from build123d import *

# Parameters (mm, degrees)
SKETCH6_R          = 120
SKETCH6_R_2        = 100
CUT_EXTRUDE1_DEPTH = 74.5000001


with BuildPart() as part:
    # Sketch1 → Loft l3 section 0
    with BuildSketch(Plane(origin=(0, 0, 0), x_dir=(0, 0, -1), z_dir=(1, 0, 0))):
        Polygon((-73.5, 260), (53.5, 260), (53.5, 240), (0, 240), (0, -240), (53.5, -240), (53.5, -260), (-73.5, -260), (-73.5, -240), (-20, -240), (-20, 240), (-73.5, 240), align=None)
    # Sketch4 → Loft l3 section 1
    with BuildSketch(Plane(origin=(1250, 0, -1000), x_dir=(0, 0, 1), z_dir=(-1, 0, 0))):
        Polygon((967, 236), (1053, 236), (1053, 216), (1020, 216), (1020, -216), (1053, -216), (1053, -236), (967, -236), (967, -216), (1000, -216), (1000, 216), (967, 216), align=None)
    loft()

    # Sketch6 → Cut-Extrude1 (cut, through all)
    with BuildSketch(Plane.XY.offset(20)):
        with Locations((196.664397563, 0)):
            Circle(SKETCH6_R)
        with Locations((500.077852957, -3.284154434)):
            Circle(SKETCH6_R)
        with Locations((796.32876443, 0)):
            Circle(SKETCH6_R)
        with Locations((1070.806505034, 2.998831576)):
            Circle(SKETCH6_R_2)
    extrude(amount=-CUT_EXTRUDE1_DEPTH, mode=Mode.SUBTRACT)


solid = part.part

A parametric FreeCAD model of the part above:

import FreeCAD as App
import Part
import Sketcher
from FreeCAD import Vector
Q = App.Units.Quantity


def add_polygon(sketch, points):
    """Adds a closed chain of lines whose ends are joined by coincident constraints."""
    first, n = sketch.GeometryCount, len(points)
    for a, b in zip(points, points[1:] + points[:1]):
        sketch.addGeometry(Part.LineSegment(App.Vector(*a, 0), App.Vector(*b, 0)), False)
    for i in range(n):
        sketch.addConstraint(Sketcher.Constraint("Coincident", first + i, 2, first + (i + 1) % n, 1))

doc = App.newDocument("Part")
params = doc.addObject("Spreadsheet::Sheet", "Params")
for row, (alias, value) in enumerate([
    ("sketch1_width", "20 mm"),
    ("sketch1_width2", "480 mm"),
    ("sketch1_height", "127 mm"),
    ("sketch1_height2", "53.5 mm"),
    ("sketch2_width", "20 mm"),
    ("sketch2_width2", "432 mm"),
    ("sketch2_height", "86 mm"),
    ("sketch2_height2", "33 mm"),
    ("sketch3_diameter", "240 mm"),
    ("sketch3_diameter2", "200 mm"),
], start=1):
    params.set(f"A{row}", alias)
    params.set(f"B{row}", "=" + value)
    params.setAlias(f"B{row}", alias)

body = doc.addObject("PartDesign::Body", "Body")

# Sketch on YZ plane
sketch1 = body.newObject("Sketcher::SketchObject", "Sketch")
sketch1.AttachmentSupport = (doc.getObject("YZ_Plane"), [""])
sketch1.MapMode = "FlatFace"
add_polygon(sketch1, [(260, -53.5), (260, 73.5), (240, 73.5), (240, 20), (-240, 20), (-240, 73.5), (-260, 73.5), (-260, -53.5), (-240, -53.5), (-240, 0), (240, 0), (240, -53.5)])  # lines 0-11
sketch1.addConstraint([
    Sketcher.Constraint("Vertical", 0),
    Sketcher.Constraint("Horizontal", 1),
    Sketcher.Constraint("Vertical", 2),
    Sketcher.Constraint("Horizontal", 3),
    Sketcher.Constraint("Vertical", 4),
    Sketcher.Constraint("Horizontal", 5),
    Sketcher.Constraint("Vertical", 6),
    Sketcher.Constraint("Horizontal", 7),
    Sketcher.Constraint("Vertical", 8),
    Sketcher.Constraint("Horizontal", 9),
    Sketcher.Constraint("Vertical", 10),
    Sketcher.Constraint("Horizontal", 11),
    Sketcher.Constraint("Symmetric", 8, 2, 9, 2, -1, 1),
    Sketcher.Constraint("Symmetric", 1, 2, 4, 2, -2),
    Sketcher.Constraint("Symmetric", 6, 2, 11, 2, -2),
    Sketcher.Constraint("Vertical", 4, 2, 7, 2),
    Sketcher.Constraint("Equal", 4, 8),
    Sketcher.Constraint("DistanceX", 1, 2, 1, 1, Q("20 mm")),
    Sketcher.Constraint("DistanceX", 3, 2, 3, 1, Q("480 mm")),
    Sketcher.Constraint("DistanceY", 0, 1, 0, 2, Q("127 mm")),
    Sketcher.Constraint("DistanceY", 2, 2, 2, 1, Q("53.5 mm")),
])
sketch1.setExpression("Constraints[29]", "Params.sketch1_width")
sketch1.setExpression("Constraints[30]", "Params.sketch1_width2")
sketch1.setExpression("Constraints[31]", "Params.sketch1_height")
sketch1.setExpression("Constraints[32]", "Params.sketch1_height2")

# Sketch on YZ plane
sketch2 = body.newObject("Sketcher::SketchObject", "Sketch001")
sketch2.AttachmentSupport = (doc.getObject("YZ_Plane"), [""])
sketch2.MapMode = "FlatFace"
sketch2.AttachmentOffset = App.Placement(Vector(0, 0, 1250), App.Rotation())
add_polygon(sketch2, [(236, 53), (236, -33), (216, -33), (216, 0), (-216, 0), (-216, -33), (-236, -33), (-236, 53), (-216, 53), (-216, 20), (216, 20), (216, 53)])  # lines 0-11
sketch2.addConstraint([
    Sketcher.Constraint("Vertical", 0),
    Sketcher.Constraint("Horizontal", 1),
    Sketcher.Constraint("Vertical", 2),
    Sketcher.Constraint("Horizontal", 3),
    Sketcher.Constraint("Vertical", 4),
    Sketcher.Constraint("Horizontal", 5),
    Sketcher.Constraint("Vertical", 6),
    Sketcher.Constraint("Horizontal", 7),
    Sketcher.Constraint("Vertical", 8),
    Sketcher.Constraint("Horizontal", 9),
    Sketcher.Constraint("Vertical", 10),
    Sketcher.Constraint("Horizontal", 11),
    Sketcher.Constraint("Symmetric", 2, 2, 3, 2, -1, 1),
    Sketcher.Constraint("Symmetric", 0, 2, 5, 2, -2),
    Sketcher.Constraint("Symmetric", 7, 2, 10, 2, -2),
    Sketcher.Constraint("Vertical", 4, 2, 7, 2),
    Sketcher.Constraint("Equal", 4, 8),
    Sketcher.Constraint("DistanceX", 1, 2, 1, 1, Q("20 mm")),
    Sketcher.Constraint("DistanceX", 3, 2, 3, 1, Q("432 mm")),
    Sketcher.Constraint("DistanceY", 0, 2, 0, 1, Q("86 mm")),
    Sketcher.Constraint("DistanceY", 2, 1, 2, 2, Q("33 mm")),
])
sketch2.setExpression("Constraints[29]", "Params.sketch2_width")
sketch2.setExpression("Constraints[30]", "Params.sketch2_width2")
sketch2.setExpression("Constraints[31]", "Params.sketch2_height")
sketch2.setExpression("Constraints[32]", "Params.sketch2_height2")

additiveloft = body.newObject("PartDesign::AdditiveLoft", "AdditiveLoft")
additiveloft.Profile = sketch1
additiveloft.Sections = [sketch2]

# Sketch on XY plane
sketch3 = body.newObject("Sketcher::SketchObject", "Sketch002")
sketch3.AttachmentSupport = (doc.getObject("XY_Plane"), [""])
sketch3.MapMode = "FlatFace"
sketch3.AttachmentOffset = App.Placement(Vector(0, 0, 20), App.Rotation())
sketch3.addGeometry([
    Part.Circle(Vector(196.664398, 0, 0), Vector(0, 0, 1), 120),
    Part.Circle(Vector(500.077853, -3.284154, 0), Vector(0, 0, 1), 120),
    Part.Circle(Vector(796.328764, 0, 0), Vector(0, 0, 1), 120),
    Part.Circle(Vector(1070.806505, 2.998832, 0), Vector(0, 0, 1), 100),
], False)
sketch3.addConstraint([
    Sketcher.Constraint("Equal", 0, 1),
    Sketcher.Constraint("Equal", 1, 2),
    Sketcher.Constraint("PointOnObject", 0, 3, -1),
    Sketcher.Constraint("PointOnObject", 2, 3, -1),
    Sketcher.Constraint("Diameter", 0, Q("240 mm")),
    Sketcher.Constraint("Diameter", 3, Q("200 mm")),
    Sketcher.Constraint("DistanceY", -1, 1, 3, 3, Q("2.998832 mm")),
    Sketcher.Constraint("DistanceX", 1, 3, 2, 3, Q("296.250911 mm")),
    Sketcher.Constraint("DistanceX", 2, 3, 3, 3, Q("274.477741 mm")),
    Sketcher.Constraint("DistanceX", -1, 1, 0, 3, Q("196.664398 mm")),
    Sketcher.Constraint("DistanceX", -1, 1, 1, 3, Q("500.077853 mm")),
    Sketcher.Constraint("DistanceY", 1, 3, -1, 1, Q("3.284154 mm")),
])
sketch3.setExpression("Constraints[4]", "Params.sketch3_diameter")
sketch3.setExpression("Constraints[5]", "Params.sketch3_diameter2")
pocket1 = body.newObject("PartDesign::Pocket", "Pocket")
pocket1.Profile = sketch3
pocket1.Type = "ThroughAll"

doc.recompute()
